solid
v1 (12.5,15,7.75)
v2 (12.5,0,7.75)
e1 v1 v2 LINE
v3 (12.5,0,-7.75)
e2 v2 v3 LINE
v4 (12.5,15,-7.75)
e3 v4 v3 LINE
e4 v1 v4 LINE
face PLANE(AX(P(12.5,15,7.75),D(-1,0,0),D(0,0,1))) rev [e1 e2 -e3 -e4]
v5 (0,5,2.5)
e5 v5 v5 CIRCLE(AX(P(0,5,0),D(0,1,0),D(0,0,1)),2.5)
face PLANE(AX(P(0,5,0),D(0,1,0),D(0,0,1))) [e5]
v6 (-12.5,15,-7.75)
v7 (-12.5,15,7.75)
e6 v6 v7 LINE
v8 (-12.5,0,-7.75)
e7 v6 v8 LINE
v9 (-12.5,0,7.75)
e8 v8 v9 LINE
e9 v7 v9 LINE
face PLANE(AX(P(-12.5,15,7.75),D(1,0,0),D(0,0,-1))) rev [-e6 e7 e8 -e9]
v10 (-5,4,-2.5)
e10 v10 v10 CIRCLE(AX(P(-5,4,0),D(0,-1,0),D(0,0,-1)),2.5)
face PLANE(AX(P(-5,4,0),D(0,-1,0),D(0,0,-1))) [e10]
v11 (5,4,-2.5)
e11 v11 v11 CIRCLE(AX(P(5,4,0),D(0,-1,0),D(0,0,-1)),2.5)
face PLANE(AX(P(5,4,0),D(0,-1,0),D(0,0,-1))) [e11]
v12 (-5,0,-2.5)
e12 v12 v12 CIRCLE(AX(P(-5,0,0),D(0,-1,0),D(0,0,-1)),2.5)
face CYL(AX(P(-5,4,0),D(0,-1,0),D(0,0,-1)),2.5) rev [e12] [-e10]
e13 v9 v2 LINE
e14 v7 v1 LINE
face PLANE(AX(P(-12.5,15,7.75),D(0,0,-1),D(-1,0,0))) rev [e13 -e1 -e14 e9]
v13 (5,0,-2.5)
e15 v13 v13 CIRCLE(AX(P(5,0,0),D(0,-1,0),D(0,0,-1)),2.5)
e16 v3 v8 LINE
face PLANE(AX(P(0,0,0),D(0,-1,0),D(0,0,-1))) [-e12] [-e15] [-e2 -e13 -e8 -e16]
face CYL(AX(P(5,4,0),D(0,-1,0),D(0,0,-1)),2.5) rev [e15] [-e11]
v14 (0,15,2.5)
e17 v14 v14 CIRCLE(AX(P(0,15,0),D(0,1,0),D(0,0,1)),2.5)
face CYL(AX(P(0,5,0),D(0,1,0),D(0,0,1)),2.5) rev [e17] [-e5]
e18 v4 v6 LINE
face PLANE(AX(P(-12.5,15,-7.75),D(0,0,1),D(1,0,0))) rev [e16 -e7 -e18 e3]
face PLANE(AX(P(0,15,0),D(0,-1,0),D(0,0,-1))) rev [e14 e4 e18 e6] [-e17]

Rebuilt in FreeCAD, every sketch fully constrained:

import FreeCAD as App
import Part
import Sketcher


def add_polygon(sketch, points):
    """Adds a closed chain of lines whose ends are joined by coincident constraints."""
    first, n = sketch.GeometryCount, len(points)
    for a, b in zip(points, points[1:] + points[:1]):
        sketch.addGeometry(Part.LineSegment(App.Vector(*a, 0), App.Vector(*b, 0)), False)
    for i in range(n):
        sketch.addConstraint(Sketcher.Constraint("Coincident", first + i, 2, first + (i + 1) % n, 1))

doc = App.newDocument("Part")
body = doc.addObject("PartDesign::Body", "Body")

# Sketch on XZ plane
sketch1 = body.newObject("Sketcher::SketchObject", "Sketch")
sketch1.AttachmentSupport = (doc.getObject("XZ_Plane"), [""])
sketch1.MapMode = "FlatFace"
add_polygon(sketch1, [(-12.5, -7.75), (-12.5, 7.75), (12.5, 7.75), (12.5, -7.75)])  # lines 0-3
sketch1.addConstraint(Sketcher.Constraint("Vertical", 0))
sketch1.addConstraint(Sketcher.Constraint("Horizontal", 1))
sketch1.addConstraint(Sketcher.Constraint("Vertical", 2))
sketch1.addConstraint(Sketcher.Constraint("Horizontal", 3))
sketch1.addConstraint(Sketcher.Constraint("Symmetric", 0, 2, 2, 2, -1, 1))
sketch1.addConstraint(Sketcher.Constraint("DistanceX", 1, 1, 1, 2, 25.0))
sketch1.addConstraint(Sketcher.Constraint("DistanceY", 0, 1, 0, 2, 15.5))
pad1 = body.newObject("PartDesign::Pad", "Pad")
pad1.Profile = sketch1
pad1.Length = 15
pad1.Reversed = True

# Sketch on XZ plane
sketch2 = body.newObject("Sketcher::SketchObject", "Sketch001")
sketch2.AttachmentSupport = (doc.getObject("XZ_Plane"), [""])
sketch2.MapMode = "FlatFace"
sketch2.AttachmentOffset = App.Placement(App.Vector(0, 0, -15), App.Rotation())
sketch2.addGeometry(Part.Circle(App.Vector(0, 0, 0), App.Vector(0, 0, 1), 2.5), False)
sketch2.addConstraint(Sketcher.Constraint("Coincident", 0, 3, -1, 1))
sketch2.addConstraint(Sketcher.Constraint("Diameter", 0, 5.0))
pocket1 = body.newObject("PartDesign::Pocket", "Pocket")
pocket1.Profile = sketch2
pocket1.Length = 10
pocket1.Reversed = True

# Sketch on XZ plane
sketch3 = body.newObject("Sketcher::SketchObject", "Sketch002")
sketch3.AttachmentSupport = (doc.getObject("XZ_Plane"), [""])
sketch3.MapMode = "FlatFace"
sketch3.addGeometry(Part.Circle(App.Vector(5, 0, 0), App.Vector(0, 0, 1), 2.5), False)
sketch3.addConstraint(Sketcher.Constraint("PointOnObject", 0, 3, -1))
sketch3.addConstraint(Sketcher.Constraint("Diameter", 0, 5.0))
sketch3.addConstraint(Sketcher.Constraint("DistanceX", -1, 1, 0, 3, 5.0))
pocket2 = body.newObject("PartDesign::Pocket", "Pocket001")
pocket2.Profile = sketch3
pocket2.Length = 4

# Sketch on XZ plane
sketch4 = body.newObject("Sketcher::SketchObject", "Sketch003")
sketch4.AttachmentSupport = (doc.getObject("XZ_Plane"), [""])
sketch4.MapMode = "FlatFace"
sketch4.addGeometry(Part.Circle(App.Vector(-5, 0, 0), App.Vector(0, 0, 1), 2.5), False)
sketch4.addConstraint(Sketcher.Constraint("PointOnObject", 0, 3, -1))
sketch4.addConstraint(Sketcher.Constraint("Diameter", 0, 5.0))
sketch4.addConstraint(Sketcher.Constraint("DistanceX", 0, 3, -1, 1, 5.0))
pocket3 = body.newObject("PartDesign::Pocket", "Pocket002")
pocket3.Profile = sketch4
pocket3.Length = 4

doc.recompute()
